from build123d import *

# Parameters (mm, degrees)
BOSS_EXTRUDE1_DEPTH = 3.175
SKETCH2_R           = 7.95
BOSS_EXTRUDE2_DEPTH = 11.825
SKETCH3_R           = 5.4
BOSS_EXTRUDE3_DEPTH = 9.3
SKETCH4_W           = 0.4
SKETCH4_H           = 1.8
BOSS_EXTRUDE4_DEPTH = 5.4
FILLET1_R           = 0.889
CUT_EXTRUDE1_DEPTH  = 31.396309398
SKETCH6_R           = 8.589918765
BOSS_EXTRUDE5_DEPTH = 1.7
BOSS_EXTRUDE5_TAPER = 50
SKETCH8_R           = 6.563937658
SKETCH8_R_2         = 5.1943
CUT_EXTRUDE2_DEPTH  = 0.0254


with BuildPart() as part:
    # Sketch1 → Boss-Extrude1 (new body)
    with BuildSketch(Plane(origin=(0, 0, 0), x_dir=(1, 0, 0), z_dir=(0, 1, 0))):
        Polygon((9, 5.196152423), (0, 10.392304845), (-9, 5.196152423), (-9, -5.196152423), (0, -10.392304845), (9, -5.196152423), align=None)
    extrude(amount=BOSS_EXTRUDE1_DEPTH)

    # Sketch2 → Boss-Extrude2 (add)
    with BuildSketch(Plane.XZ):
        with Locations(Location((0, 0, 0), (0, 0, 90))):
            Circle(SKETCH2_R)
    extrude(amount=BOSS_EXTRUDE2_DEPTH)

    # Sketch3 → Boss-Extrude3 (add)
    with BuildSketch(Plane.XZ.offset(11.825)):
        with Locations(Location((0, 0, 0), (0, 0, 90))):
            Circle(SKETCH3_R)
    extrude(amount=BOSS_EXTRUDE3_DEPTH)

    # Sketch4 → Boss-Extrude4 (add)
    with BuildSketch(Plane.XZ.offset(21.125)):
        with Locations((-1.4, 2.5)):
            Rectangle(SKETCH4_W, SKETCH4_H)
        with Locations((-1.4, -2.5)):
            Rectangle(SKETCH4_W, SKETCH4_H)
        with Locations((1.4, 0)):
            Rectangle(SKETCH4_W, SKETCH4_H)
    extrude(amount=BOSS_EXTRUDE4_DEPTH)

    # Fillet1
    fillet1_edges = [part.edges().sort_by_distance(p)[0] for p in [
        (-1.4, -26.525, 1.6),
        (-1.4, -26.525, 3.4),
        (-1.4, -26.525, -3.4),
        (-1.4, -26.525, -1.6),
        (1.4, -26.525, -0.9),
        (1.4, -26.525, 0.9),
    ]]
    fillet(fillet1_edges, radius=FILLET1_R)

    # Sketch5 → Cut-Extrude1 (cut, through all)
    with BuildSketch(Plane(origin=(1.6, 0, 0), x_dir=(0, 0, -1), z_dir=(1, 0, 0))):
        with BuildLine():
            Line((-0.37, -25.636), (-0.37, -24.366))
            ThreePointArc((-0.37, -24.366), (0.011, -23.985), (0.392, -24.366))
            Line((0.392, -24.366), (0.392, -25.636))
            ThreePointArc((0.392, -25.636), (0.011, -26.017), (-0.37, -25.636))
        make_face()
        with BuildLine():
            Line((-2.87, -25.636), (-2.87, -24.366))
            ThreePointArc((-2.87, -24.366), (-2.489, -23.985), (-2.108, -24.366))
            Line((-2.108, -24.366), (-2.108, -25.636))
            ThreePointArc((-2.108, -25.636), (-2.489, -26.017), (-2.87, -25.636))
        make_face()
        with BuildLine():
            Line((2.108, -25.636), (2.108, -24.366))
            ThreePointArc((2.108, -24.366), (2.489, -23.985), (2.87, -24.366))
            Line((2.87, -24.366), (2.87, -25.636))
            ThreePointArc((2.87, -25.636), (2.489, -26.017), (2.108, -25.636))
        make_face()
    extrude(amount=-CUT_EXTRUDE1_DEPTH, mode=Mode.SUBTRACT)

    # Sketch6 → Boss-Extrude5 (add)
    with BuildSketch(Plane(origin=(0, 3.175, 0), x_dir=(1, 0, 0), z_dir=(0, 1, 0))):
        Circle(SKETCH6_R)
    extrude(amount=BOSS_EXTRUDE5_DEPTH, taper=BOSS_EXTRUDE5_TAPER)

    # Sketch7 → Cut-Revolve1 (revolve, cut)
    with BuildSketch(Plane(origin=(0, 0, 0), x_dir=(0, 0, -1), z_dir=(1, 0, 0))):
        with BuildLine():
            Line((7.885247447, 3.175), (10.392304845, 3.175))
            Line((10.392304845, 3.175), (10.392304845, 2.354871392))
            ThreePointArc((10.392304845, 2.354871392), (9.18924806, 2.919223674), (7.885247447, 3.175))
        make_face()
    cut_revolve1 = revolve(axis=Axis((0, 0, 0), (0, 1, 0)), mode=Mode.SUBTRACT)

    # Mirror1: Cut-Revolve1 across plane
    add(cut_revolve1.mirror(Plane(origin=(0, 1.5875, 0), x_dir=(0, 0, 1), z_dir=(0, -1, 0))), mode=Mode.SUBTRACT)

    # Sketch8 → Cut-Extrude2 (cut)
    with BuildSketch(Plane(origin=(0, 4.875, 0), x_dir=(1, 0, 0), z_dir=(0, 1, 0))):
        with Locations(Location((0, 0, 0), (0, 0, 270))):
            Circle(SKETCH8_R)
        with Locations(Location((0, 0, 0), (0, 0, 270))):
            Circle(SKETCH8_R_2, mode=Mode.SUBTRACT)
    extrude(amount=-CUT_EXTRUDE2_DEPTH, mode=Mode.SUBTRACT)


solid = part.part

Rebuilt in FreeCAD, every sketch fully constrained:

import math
import FreeCAD as App
import Part
import Sketcher
from FreeCAD import Vector
Q = App.Units.Quantity


def edges_at(feature, points):
    """Names of the edges that pass closest to the given points."""
    edges = feature.Shape.Edges
    near = lambda p: min(range(len(edges)), key=lambda i: edges[i].distToShape(Part.Vertex(*p))[0])
    return sorted({f"Edge{near(p) + 1}" for p in points})

doc = App.newDocument("Part")
body = doc.addObject("PartDesign::Body", "Body")

# Sketch on XZ plane
sketch1 = doc.addObject("Sketcher::SketchObject", "Sketch")
body.addObject(sketch1)
sketch1.AttachmentSupport = (doc.XZ_Plane, [""])
sketch1.MapMode = "FlatFace"
sketch1.addGeometry(Part.LineSegment(Vector(9, -5, 0), Vector(0, -10, 0)), False)
sketch1.addGeometry(Part.LineSegment(Vector(0, -10, 0), Vector(-9, -5, 0)), False)
sketch1.addGeometry(Part.LineSegment(Vector(-9, -5, 0), Vector(-9, 5, 0)), False)
sketch1.addGeometry(Part.LineSegment(Vector(-9, 5, 0), Vector(0, 10, 0)), False)
sketch1.addGeometry(Part.LineSegment(Vector(0, 10, 0), Vector(9, 5, 0)), False)
sketch1.addGeometry(Part.LineSegment(Vector(9, 5, 0), Vector(9, -5, 0)), False)
sketch1.addConstraint(Sketcher.Constraint("Coincident", 0, 2, 1, 1))
sketch1.addConstraint(Sketcher.Constraint("Coincident", 1, 2, 2, 1))
sketch1.addConstraint(Sketcher.Constraint("Coincident", 2, 2, 3, 1))
sketch1.addConstraint(Sketcher.Constraint("Coincident", 3, 2, 4, 1))
sketch1.addConstraint(Sketcher.Constraint("Coincident", 4, 2, 5, 1))
sketch1.addConstraint(Sketcher.Constraint("Coincident", 5, 2, 0, 1))
sketch1.addConstraint(Sketcher.Constraint("Vertical", 2))
sketch1.addConstraint(Sketcher.Constraint("Vertical", 5))
sketch1.addConstraint(Sketcher.Constraint("Symmetric", 0, 2, 3, 2, -1, 1))
sketch1.addConstraint(Sketcher.Constraint("Symmetric", 1, 2, 4, 2, -1, 1))
sketch1.addConstraint(Sketcher.Constraint("PointOnObject", 0, 2, -2))
sketch1.addConstraint(Sketcher.Constraint("Parallel", 0, 3))
sketch1.addConstraint(Sketcher.Constraint("Horizontal", 2, 2, 4, 2))
sketch1.addConstraint(Sketcher.Constraint("Angle", 0, Q("-150 deg")))
sketch1.addConstraint(Sketcher.Constraint("DistanceX", 1, 2, -1, 1, 9.0))
sketch1.addConstraint(Sketcher.Constraint("DistanceY", 2, 1, 2, 2, 10.392305))
pad1 = doc.addObject("PartDesign::Pad", "Pad")
body.addObject(pad1)
pad1.Profile = sketch1
pad1.Length = 3.175
pad1.Reversed = True

# Sketch on XZ plane
sketch2 = doc.addObject("Sketcher::SketchObject", "Sketch001")
body.addObject(sketch2)
sketch2.AttachmentSupport = (doc.XZ_Plane, [""])
sketch2.MapMode = "FlatFace"
sketch2.addGeometry(Part.Circle(Vector(0, 0, 0), Vector(0, 0, 1), 8), False)
sketch2.addConstraint(Sketcher.Constraint("Coincident", 0, 3, -1, 1))
sketch2.addConstraint(Sketcher.Constraint("Diameter", 0, 15.9))
pad2 = doc.addObject("PartDesign::Pad", "Pad001")
body.addObject(pad2)
pad2.Profile = sketch2
pad2.Length = 11.825

# Sketch on XZ plane
sketch3 = doc.addObject("Sketcher::SketchObject", "Sketch002")
body.addObject(sketch3)
sketch3.AttachmentSupport = (doc.XZ_Plane, [""])
sketch3.MapMode = "FlatFace"
sketch3.AttachmentOffset = App.Placement(Vector(0, 0, 11.825), App.Rotation())
sketch3.addGeometry(Part.Circle(Vector(0, 0, 0), Vector(0, 0, 1), 5), False)
sketch3.addConstraint(Sketcher.Constraint("Coincident", 0, 3, -1, 1))
sketch3.addConstraint(Sketcher.Constraint("Diameter", 0, 10.8))
pad3 = doc.addObject("PartDesign::Pad", "Pad002")
body.addObject(pad3)
pad3.Profile = sketch3
pad3.Length = 9.3

# Sketch on XZ plane
sketch4 = doc.addObject("Sketcher::SketchObject", "Sketch003")
body.addObject(sketch4)
sketch4.AttachmentSupport = (doc.XZ_Plane, [""])
sketch4.MapMode = "FlatFace"
sketch4.AttachmentOffset = App.Placement(Vector(0, 0, 21.125), App.Rotation())
sketch4.addGeometry(Part.LineSegment(Vector(-1.6, 3.4, 0), Vector(-1.6, 1.6, 0)), False)
sketch4.addGeometry(Part.LineSegment(Vector(-1.6, 1.6, 0), Vector(-1.2, 1.6, 0)), False)
sketch4.addGeometry(Part.LineSegment(Vector(-1.2, 1.6, 0), Vector(-1.2, 3.4, 0)), False)
sketch4.addGeometry(Part.LineSegment(Vector(-1.2, 3.4, 0), Vector(-1.6, 3.4, 0)), False)
sketch4.addGeometry(Part.LineSegment(Vector(-1.6, -1.6, 0), Vector(-1.6, -3.4, 0)), False)
sketch4.addGeometry(Part.LineSegment(Vector(-1.6, -3.4, 0), Vector(-1.2, -3.4, 0)), False)
sketch4.addGeometry(Part.LineSegment(Vector(-1.2, -3.4, 0), Vector(-1.2, -1.6, 0)), False)
sketch4.addGeometry(Part.LineSegment(Vector(-1.2, -1.6, 0), Vector(-1.6, -1.6, 0)), False)
sketch4.addGeometry(Part.LineSegment(Vector(1.2, 0.9, 0), Vector(1.2, -0.9, 0)), False)
sketch4.addGeometry(Part.LineSegment(Vector(1.2, -0.9, 0), Vector(1.6, -0.9, 0)), False)
sketch4.addGeometry(Part.LineSegment(Vector(1.6, -0.9, 0), Vector(1.6, 0.9, 0)), False)
sketch4.addGeometry(Part.LineSegment(Vector(1.6, 0.9, 0), Vector(1.2, 0.9, 0)), False)
sketch4.addConstraint(Sketcher.Constraint("Coincident", 0, 2, 1, 1))
sketch4.addConstraint(Sketcher.Constraint("Coincident", 1, 2, 2, 1))
sketch4.addConstraint(Sketcher.Constraint("Coincident", 2, 2, 3, 1))
sketch4.addConstraint(Sketcher.Constraint("Coincident", 3, 2, 0, 1))
sketch4.addConstraint(Sketcher.Constraint("Coincident", 4, 2, 5, 1))
sketch4.addConstraint(Sketcher.Constraint("Coincident", 5, 2, 6, 1))
sketch4.addConstraint(Sketcher.Constraint("Coincident", 6, 2, 7, 1))
sketch4.addConstraint(Sketcher.Constraint("Coincident", 7, 2, 4, 1))
sketch4.addConstraint(Sketcher.Constraint("Coincident", 8, 2, 9, 1))
sketch4.addConstraint(Sketcher.Constraint("Coincident", 9, 2, 10, 1))
sketch4.addConstraint(Sketcher.Constraint("Coincident", 10, 2, 11, 1))
sketch4.addConstraint(Sketcher.Constraint("Coincident", 11, 2, 8, 1))
sketch4.addConstraint(Sketcher.Constraint("Vertical", 0))
sketch4.addConstraint(Sketcher.Constraint("Horizontal", 1))
sketch4.addConstraint(Sketcher.Constraint("Vertical", 2))
sketch4.addConstraint(Sketcher.Constraint("Horizontal", 3))
sketch4.addConstraint(Sketcher.Constraint("Vertical", 4))
sketch4.addConstraint(Sketcher.Constraint("Horizontal", 5))
sketch4.addConstraint(Sketcher.Constraint("Vertical", 6))
sketch4.addConstraint(Sketcher.Constraint("Horizontal", 7))
sketch4.addConstraint(Sketcher.Constraint("Vertical", 8))
sketch4.addConstraint(Sketcher.Constraint("Horizontal", 9))
sketch4.addConstraint(Sketcher.Constraint("Vertical", 10))
sketch4.addConstraint(Sketcher.Constraint("Horizontal", 11))
sketch4.addConstraint(Sketcher.Constraint("Symmetric", 3, 2, 4, 2, -1))
sketch4.addConstraint(Sketcher.Constraint("Symmetric", 1, 2, 6, 2, -1))
sketch4.addConstraint(Sketcher.Constraint("Equal", 7, 9))
sketch4.addConstraint(Sketcher.Constraint("Equal", 6, 8))
sketch4.addConstraint(Sketcher.Constraint("DistanceX", 1, 1, 1, 2, 0.4))
sketch4.addConstraint(Sketcher.Constraint("DistanceY", 0, 2, 0, 1, 1.8))
sketch4.addConstraint(Sketcher.Constraint("DistanceY", 4, 2, 0, 2, 5.0))
sketch4.addConstraint(Sketcher.Constraint("DistanceX", 0, 2, -1, 1, 1.6))
sketch4.addConstraint(Sketcher.Constraint("DistanceX", -1, 1, 8, 2, 1.2))
sketch4.addConstraint(Sketcher.Constraint("DistanceY", 8, 2, -1, 1, 0.9))
pad4 = doc.addObject("PartDesign::Pad", "Pad003")
body.addObject(pad4)
pad4.Profile = sketch4
pad4.Length = 5.4
doc.recompute()

fillet = doc.addObject("PartDesign::Fillet", "Fillet")
body.addObject(fillet)
fillet.Base = (pad4, edges_at(pad4, [
    (-1.4, -26.525, 1.6),
    (-1.4, -26.525, 3.4),
    (-1.4, -26.525, -3.4),
    (-1.4, -26.525, -1.6),
    (1.4, -26.525, -0.9),
    (1.4, -26.525, 0.9),
]))
fillet.Radius = 0.889

# Sketch on YZ plane
sketch5 = doc.addObject("Sketcher::SketchObject", "Sketch004")
body.addObject(sketch5)
sketch5.AttachmentSupport = (doc.YZ_Plane, [""])
sketch5.MapMode = "FlatFace"
sketch5.AttachmentOffset = App.Placement(Vector(0, 0, 1.6), App.Rotation())
sketch5.addGeometry(Part.LineSegment(Vector(-24.37, 0.37, 0), Vector(-25.64, 0.37, 0)), False)
sketch5.addGeometry(Part.ArcOfCircle(Part.Circle(Vector(-25.64, -0.01, 0), Vector(0, 0, 1), 0.38), math.radians(90), math.radians(270)), False)
sketch5.addGeometry(Part.LineSegment(Vector(-25.64, -0.39, 0), Vector(-24.37, -0.39, 0)), False)
sketch5.addGeometry(Part.ArcOfCircle(Part.Circle(Vector(-24.37, -0.01, 0), Vector(0, 0, 1), 0.38), math.radians(-90), math.radians(90)), False)
sketch5.addGeometry(Part.LineSegment(Vector(-24.37, 2.87, 0), Vector(-25.64, 2.87, 0)), False)
sketch5.addGeometry(Part.ArcOfCircle(Part.Circle(Vector(-25.64, 2.49, 0), Vector(0, 0, 1), 0.38), math.radians(90), math.radians(270)), False)
sketch5.addGeometry(Part.LineSegment(Vector(-25.64, 2.11, 0), Vector(-24.37, 2.11, 0)), False)
sketch5.addGeometry(Part.ArcOfCircle(Part.Circle(Vector(-24.37, 2.49, 0), Vector(0, 0, 1), 0.38), math.radians(-90), math.radians(90)), False)
sketch5.addGeometry(Part.LineSegment(Vector(-24.37, -2.11, 0), Vector(-25.64, -2.11, 0)), False)
sketch5.addGeometry(Part.ArcOfCircle(Part.Circle(Vector(-25.64, -2.49, 0), Vector(0, 0, 1), 0.38), math.radians(90), math.radians(270)), False)
sketch5.addGeometry(Part.LineSegment(Vector(-25.64, -2.87, 0), Vector(-24.37, -2.87, 0)), False)
sketch5.addGeometry(Part.ArcOfCircle(Part.Circle(Vector(-24.37, -2.49, 0), Vector(0, 0, 1), 0.38), math.radians(-90), math.radians(90)), False)
sketch5.addConstraint(Sketcher.Constraint("Tangent", 0, 2, 1, 1))
sketch5.addConstraint(Sketcher.Constraint("Tangent", 1, 2, 2, 1))
sketch5.addConstraint(Sketcher.Constraint("Tangent", 2, 2, 3, 1))
sketch5.addConstraint(Sketcher.Constraint("Tangent", 3, 2, 0, 1))
sketch5.addConstraint(Sketcher.Constraint("Tangent", 4, 2, 5, 1))
sketch5.addConstraint(Sketcher.Constraint("Tangent", 5, 2, 6, 1))
sketch5.addConstraint(Sketcher.Constraint("Tangent", 6, 2, 7, 1))
sketch5.addConstraint(Sketcher.Constraint("Tangent", 7, 2, 4, 1))
sketch5.addConstraint(Sketcher.Constraint("Tangent", 8, 2, 9, 1))
sketch5.addConstraint(Sketcher.Constraint("Tangent", 9, 2, 10, 1))
sketch5.addConstraint(Sketcher.Constraint("Tangent", 10, 2, 11, 1))
sketch5.addConstraint(Sketcher.Constraint("Tangent", 11, 2, 8, 1))
sketch5.addConstraint(Sketcher.Constraint("Horizontal", 0))
sketch5.addConstraint(Sketcher.Constraint("Horizontal", 2))
sketch5.addConstraint(Sketcher.Constraint("Horizontal", 4))
sketch5.addConstraint(Sketcher.Constraint("Horizontal", 6))
sketch5.addConstraint(Sketcher.Constraint("Horizontal", 8))
sketch5.addConstraint(Sketcher.Constraint("Horizontal", 10))
sketch5.addConstraint(Sketcher.Constraint("Equal", 3, 5))
sketch5.addConstraint(Sketcher.Constraint("Equal", 7, 9))
sketch5.addConstraint(Sketcher.Constraint("Symmetric", 5, 3, 9, 3, -1))
sketch5.addConstraint(Sketcher.Constraint("Vertical", 1, 3, 5, 3))
sketch5.addConstraint(Sketcher.Constraint("Vertical", 3, 3, 7, 3))
sketch5.addConstraint(Sketcher.Constraint("Vertical", 7, 3, 11, 3))
sketch5.addConstraint(Sketcher.Constraint("Radius", 1, 0.381))
sketch5.addConstraint(Sketcher.Constraint("DistanceX", 0, 2, 0, 1, 1.27))
sketch5.addConstraint(Sketcher.Constraint("DistanceY", 1, 3, 5, 3, 2.5))
sketch5.addConstraint(Sketcher.Constraint("DistanceY", -1, 1, 0, 2, 0.37))
sketch5.addConstraint(Sketcher.Constraint("DistanceX", 1, 3, -1, 1, 25.636))
pocket1 = doc.addObject("PartDesign::Pocket", "Pocket")
body.addObject(pocket1)
pocket1.Profile = sketch5
pocket1.Type = "ThroughAll"

# Sketch on XZ plane
sketch6 = doc.addObject("Sketcher::SketchObject", "Sketch005")
body.addObject(sketch6)
sketch6.AttachmentSupport = (doc.XZ_Plane, [""])
sketch6.MapMode = "FlatFace"
sketch6.AttachmentOffset = App.Placement(Vector(0, 0, -3.175), App.Rotation())
sketch6.addGeometry(Part.Circle(Vector(0, 0, 0), Vector(0, 0, 1), 9), False)
sketch6.addConstraint(Sketcher.Constraint("Coincident", 0, 3, -1, 1))
sketch6.addConstraint(Sketcher.Constraint("Diameter", 0, 17.179838))
pad5 = doc.addObject("PartDesign::Pad", "Pad004")
body.addObject(pad5)
pad5.Profile = sketch6
pad5.Length = 1.7
pad5.Reversed = True
pad5.TaperAngle = -50

# Sketch on YZ plane
sketch7 = doc.addObject("Sketcher::SketchObject", "Sketch006")
body.addObject(sketch7)
sketch7.AttachmentSupport = (doc.YZ_Plane, [""])
sketch7.MapMode = "FlatFace"
sketch7.addGeometry(Part.LineSegment(Vector(3.2, -10.4, 0), Vector(3.2, -7.9, 0)), False)
sketch7.addGeometry(Part.ArcOfCircle(Part.Circle(Vector(-2.3, -7.5, 0), Vector(0, 0, 1), 5.4), math.radians(-32), math.radians(-4)), False)
sketch7.addGeometry(Part.LineSegment(Vector(2.4, -10.4, 0), Vector(3.2, -10.4, 0)), False)
sketch7.addConstraint(Sketcher.Constraint("Coincident", 0, 2, 1, 2))
sketch7.addConstraint(Sketcher.Constraint("Coincident", 1, 1, 2, 1))
sketch7.addConstraint(Sketcher.Constraint("Coincident", 2, 2, 0, 1))
sketch7.addConstraint(Sketcher.Constraint("Vertical", 0))
sketch7.addConstraint(Sketcher.Constraint("Horizontal", 2))
sketch7.addConstraint(Sketcher.Constraint("Radius", 1, 5.438921))
sketch7.addConstraint(Sketcher.Constraint("DistanceX", -1, 1, 0, 2, 3.175))
sketch7.addConstraint(Sketcher.Constraint("DistanceX", 2, 1, 2, 2, 0.820129))
sketch7.addConstraint(Sketcher.Constraint("DistanceY", 0, 1, 0, 2, 2.507057))
sketch7.addConstraint(Sketcher.Constraint("DistanceY", 1, 3, -1, 1, 7.498207))
groove = doc.addObject("PartDesign::Groove", "Groove")
body.addObject(groove)
groove.Profile = sketch7
groove.ReferenceAxis = (sketch7, ["H_Axis"])
groove.Angle = 360
doc.recompute()

datumplane = doc.addObject("PartDesign::Plane", "DatumPlane")
body.addObject(datumplane)
datumplane.AttachmentSupport = (doc.XZ_Plane, [""])
datumplane.MapMode = "FlatFace"
datumplane.AttachmentOffset = App.Placement(Vector(0, 0, -1.5875), App.Rotation())
mirrored = doc.addObject("PartDesign::Mirrored", "Mirrored")
body.addObject(mirrored)
mirrored.Originals = [groove]
mirrored.MirrorPlane = (datumplane, [""])
body.Tip = mirrored

# Sketch on XZ plane
sketch8 = doc.addObject("Sketcher::SketchObject", "Sketch007")
body.addObject(sketch8)
sketch8.AttachmentSupport = (doc.XZ_Plane, [""])
sketch8.MapMode = "FlatFace"
sketch8.AttachmentOffset = App.Placement(Vector(0, 0, -4.875), App.Rotation())
sketch8.addGeometry(Part.Circle(Vector(0, 0, 0), Vector(0, 0, 1), 7), False)
sketch8.addGeometry(Part.Circle(Vector(0, 0, 0), Vector(0, 0, 1), 5), False)
sketch8.addConstraint(Sketcher.Constraint("Coincident", 0, 3, -1, 1))
sketch8.addConstraint(Sketcher.Constraint("Coincident", 1, 3, -1, 1))
sketch8.addConstraint(Sketcher.Constraint("Diameter", 1, 10.3886))
sketch8.addConstraint(Sketcher.Constraint("Diameter", 0, 13.127875))
pocket2 = doc.addObject("PartDesign::Pocket", "Pocket001")
body.addObject(pocket2)
pocket2.Profile = sketch8
pocket2.Length = 0.0254
pocket2.Reversed = True

doc.recompute()
